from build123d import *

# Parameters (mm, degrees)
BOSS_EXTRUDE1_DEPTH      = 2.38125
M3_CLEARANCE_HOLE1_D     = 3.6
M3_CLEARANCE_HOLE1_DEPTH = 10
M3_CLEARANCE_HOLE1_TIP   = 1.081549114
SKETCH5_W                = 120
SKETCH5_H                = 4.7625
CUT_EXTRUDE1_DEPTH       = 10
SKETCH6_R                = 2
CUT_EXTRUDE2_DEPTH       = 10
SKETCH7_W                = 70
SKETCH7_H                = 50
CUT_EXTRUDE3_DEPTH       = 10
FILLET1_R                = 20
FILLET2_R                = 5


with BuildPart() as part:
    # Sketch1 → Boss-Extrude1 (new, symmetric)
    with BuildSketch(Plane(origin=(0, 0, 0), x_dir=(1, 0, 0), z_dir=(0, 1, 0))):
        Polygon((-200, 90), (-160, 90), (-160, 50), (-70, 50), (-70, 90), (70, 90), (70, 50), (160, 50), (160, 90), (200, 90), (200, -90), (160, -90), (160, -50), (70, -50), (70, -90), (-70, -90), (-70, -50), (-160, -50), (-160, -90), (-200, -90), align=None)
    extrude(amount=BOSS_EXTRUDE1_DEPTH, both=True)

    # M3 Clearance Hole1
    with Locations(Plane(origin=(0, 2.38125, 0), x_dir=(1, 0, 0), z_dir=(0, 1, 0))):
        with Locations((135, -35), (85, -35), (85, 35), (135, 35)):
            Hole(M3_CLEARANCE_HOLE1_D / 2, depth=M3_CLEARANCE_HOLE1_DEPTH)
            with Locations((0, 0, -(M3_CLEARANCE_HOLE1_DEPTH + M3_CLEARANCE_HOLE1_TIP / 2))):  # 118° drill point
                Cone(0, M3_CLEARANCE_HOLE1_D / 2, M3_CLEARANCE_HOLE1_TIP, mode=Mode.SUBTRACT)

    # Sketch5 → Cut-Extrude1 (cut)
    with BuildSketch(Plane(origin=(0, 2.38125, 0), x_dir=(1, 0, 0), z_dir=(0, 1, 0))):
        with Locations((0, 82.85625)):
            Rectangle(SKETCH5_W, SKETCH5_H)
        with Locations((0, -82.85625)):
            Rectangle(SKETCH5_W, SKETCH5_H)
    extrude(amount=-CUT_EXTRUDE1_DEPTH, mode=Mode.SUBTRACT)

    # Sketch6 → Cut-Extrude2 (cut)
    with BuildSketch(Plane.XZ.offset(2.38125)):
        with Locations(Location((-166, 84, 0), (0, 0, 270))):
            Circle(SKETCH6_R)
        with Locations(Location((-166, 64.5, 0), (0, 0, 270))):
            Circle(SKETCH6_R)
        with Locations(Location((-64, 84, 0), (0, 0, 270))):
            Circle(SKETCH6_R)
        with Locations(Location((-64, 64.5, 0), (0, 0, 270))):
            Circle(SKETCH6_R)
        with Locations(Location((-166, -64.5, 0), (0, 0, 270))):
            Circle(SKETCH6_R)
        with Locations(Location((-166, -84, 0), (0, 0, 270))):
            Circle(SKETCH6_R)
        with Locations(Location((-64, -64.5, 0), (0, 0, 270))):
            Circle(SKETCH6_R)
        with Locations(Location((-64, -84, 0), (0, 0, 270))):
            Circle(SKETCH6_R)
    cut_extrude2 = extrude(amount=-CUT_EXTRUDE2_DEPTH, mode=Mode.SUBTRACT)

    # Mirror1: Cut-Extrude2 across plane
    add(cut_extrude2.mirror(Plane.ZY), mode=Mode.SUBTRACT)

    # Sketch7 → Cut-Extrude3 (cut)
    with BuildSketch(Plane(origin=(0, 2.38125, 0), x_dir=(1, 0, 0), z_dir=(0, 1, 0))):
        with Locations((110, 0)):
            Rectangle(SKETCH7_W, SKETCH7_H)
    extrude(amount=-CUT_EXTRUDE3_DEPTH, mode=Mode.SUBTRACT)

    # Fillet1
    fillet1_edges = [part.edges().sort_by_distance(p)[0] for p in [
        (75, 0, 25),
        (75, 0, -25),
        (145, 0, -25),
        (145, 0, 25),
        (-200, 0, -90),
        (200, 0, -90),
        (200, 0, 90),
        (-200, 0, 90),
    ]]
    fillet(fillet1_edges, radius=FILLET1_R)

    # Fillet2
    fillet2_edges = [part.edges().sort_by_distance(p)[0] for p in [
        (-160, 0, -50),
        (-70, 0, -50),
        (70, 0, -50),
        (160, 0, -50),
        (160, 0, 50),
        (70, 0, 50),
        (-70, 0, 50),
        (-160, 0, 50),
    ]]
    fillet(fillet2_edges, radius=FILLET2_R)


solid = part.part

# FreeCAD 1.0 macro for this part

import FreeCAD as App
import Part
import Sketcher

V = App.Vector
Q = App.Units.Quantity


def edges_at(feature, points):
    """Names of the edges that pass closest to the given points."""
    edges = feature.Shape.Edges
    near = lambda p: min(range(len(edges)), key=lambda i: edges[i].distToShape(Part.Vertex(*p))[0])
    return sorted({f"Edge{near(p) + 1}" for p in points})

doc = App.newDocument("Part")
params = doc.addObject("Spreadsheet::Sheet", "Params")
for row, (alias, value) in enumerate([
    ("sketch1_width", "40 mm"),
    ("sketch1_width2", "90 mm"),
    ("sketch1_width3", "140 mm"),
    ("sketch1_height", "180 mm"),
    ("pad1_length", "4.7625 mm"),
    ("sketch2_diameter", "3.6 mm"),
    ("hole_diameter", "3.6 mm"),
    ("hole_depth", "10 mm"),
    ("sketch3_width", "120 mm"),
    ("pocket1_length", "10 mm"),
    ("sketch4_diameter", "4 mm"),
    ("pocket2_length", "10 mm"),
    ("sketch5_width", "70 mm"),
    ("sketch5_height", "50 mm"),
    ("pocket3_length", "10 mm"),
    ("fillet_radius", "20 mm"),
    ("fillet2_radius", "5 mm"),
], start=1):
    params.set(f"A{row}", alias)
    params.set(f"B{row}", "=" + value)
    params.setAlias(f"B{row}", alias)

body = doc.addObject("PartDesign::Body", "Body")

# Sketch on XZ plane
sketch1 = body.newObject("Sketcher::SketchObject", "Sketch")
sketch1.AttachmentSupport = (doc.getObject("XZ_Plane"), [""])
sketch1.MapMode = "FlatFace"
sketch1.addGeometry([
    Part.LineSegment(V(-160, -90, 0), V(-200, -90, 0)),  # 0
    Part.LineSegment(V(-200, -90, 0), V(-200, 90, 0)),  # 1
    Part.LineSegment(V(-200, 90, 0), V(-160, 90, 0)),  # 2
    Part.LineSegment(V(-160, 90, 0), V(-160, 50, 0)),  # 3
    Part.LineSegment(V(-160, 50, 0), V(-70, 50, 0)),  # 4
    Part.LineSegment(V(-70, 50, 0), V(-70, 90, 0)),  # 5
    Part.LineSegment(V(-70, 90, 0), V(70, 90, 0)),  # 6
    Part.LineSegment(V(70, 90, 0), V(70, 50, 0)),  # 7
    Part.LineSegment(V(70, 50, 0), V(160, 50, 0)),  # 8
    Part.LineSegment(V(160, 50, 0), V(160, 90, 0)),  # 9
    Part.LineSegment(V(160, 90, 0), V(200, 90, 0)),  # 10
    Part.LineSegment(V(200, 90, 0), V(200, -90, 0)),  # 11
    Part.LineSegment(V(200, -90, 0), V(160, -90, 0)),  # 12
    Part.LineSegment(V(160, -90, 0), V(160, -50, 0)),  # 13
    Part.LineSegment(V(160, -50, 0), V(70, -50, 0)),  # 14
    Part.LineSegment(V(70, -50, 0), V(70, -90, 0)),  # 15
    Part.LineSegment(V(70, -90, 0), V(-70, -90, 0)),  # 16
    Part.LineSegment(V(-70, -90, 0), V(-70, -50, 0)),  # 17
    Part.LineSegment(V(-70, -50, 0), V(-160, -50, 0)),  # 18
    Part.LineSegment(V(-160, -50, 0), V(-160, -90, 0)),  # 19
], False)
sketch1.addConstraint([
    Sketcher.Constraint("Coincident", 0, 2, 1, 1),
    Sketcher.Constraint("Coincident", 1, 2, 2, 1),
    Sketcher.Constraint("Coincident", 2, 2, 3, 1),
    Sketcher.Constraint("Coincident", 3, 2, 4, 1),
    Sketcher.Constraint("Coincident", 4, 2, 5, 1),
    Sketcher.Constraint("Coincident", 5, 2, 6, 1),
    Sketcher.Constraint("Coincident", 6, 2, 7, 1),
    Sketcher.Constraint("Coincident", 7, 2, 8, 1),
    Sketcher.Constraint("Coincident", 8, 2, 9, 1),
    Sketcher.Constraint("Coincident", 9, 2, 10, 1),
    Sketcher.Constraint("Coincident", 10, 2, 11, 1),
    Sketcher.Constraint("Coincident", 11, 2, 12, 1),
    Sketcher.Constraint("Coincident", 12, 2, 13, 1),
    Sketcher.Constraint("Coincident", 13, 2, 14, 1),
    Sketcher.Constraint("Coincident", 14, 2, 15, 1),
    Sketcher.Constraint("Coincident", 15, 2, 16, 1),
    Sketcher.Constraint("Coincident", 16, 2, 17, 1),
    Sketcher.Constraint("Coincident", 17, 2, 18, 1),
    Sketcher.Constraint("Coincident", 18, 2, 19, 1),
    Sketcher.Constraint("Coincident", 19, 2, 0, 1),
    Sketcher.Constraint("Horizontal", 0),
    Sketcher.Constraint("Vertical", 1),
    Sketcher.Constraint("Horizontal", 2),
    Sketcher.Constraint("Vertical", 3),
    Sketcher.Constraint("Horizontal", 4),
    Sketcher.Constraint("Vertical", 5),
    Sketcher.Constraint("Horizontal", 6),
    Sketcher.Constraint("Vertical", 7),
    Sketcher.Constraint("Horizontal", 8),
    Sketcher.Constraint("Vertical", 9),
    Sketcher.Constraint("Horizontal", 10),
    Sketcher.Constraint("Vertical", 11),
    Sketcher.Constraint("Horizontal", 12),
    Sketcher.Constraint("Vertical", 13),
    Sketcher.Constraint("Horizontal", 14),
    Sketcher.Constraint("Vertical", 15),
    Sketcher.Constraint("Horizontal", 16),
    Sketcher.Constraint("Vertical", 17),
    Sketcher.Constraint("Horizontal", 18),
    Sketcher.Constraint("Vertical", 19),
    Sketcher.Constraint("Symmetric", 0, 2, 10, 2, -1, 1),
    Sketcher.Constraint("Symmetric", 2, 2, 12, 2, -1, 1),
    Sketcher.Constraint("Symmetric", 4, 2, 14, 2, -1, 1),
    Sketcher.Constraint("Symmetric", 6, 2, 16, 2, -1, 1),
    Sketcher.Constraint("Symmetric", 8, 2, 18, 2, -1, 1),
    Sketcher.Constraint("Symmetric", 4, 2, 7, 2, -2),
    Sketcher.Constraint("Symmetric", 2, 2, 9, 2, -2),
    Sketcher.Constraint("Horizontal", 2, 2, 5, 2),
    Sketcher.Constraint("Equal", 12, 3),
    Sketcher.Constraint("DistanceX", 0, 2, 0, 1, Q("40 mm")),
    Sketcher.Constraint("DistanceX", 4, 1, 4, 2, Q("90 mm")),
    Sketcher.Constraint("DistanceX", 6, 1, 6, 2, Q("140 mm")),
    Sketcher.Constraint("DistanceY", 1, 1, 1, 2, Q("180 mm")),
])
sketch1.setExpression("Constraints[49]", "Params.sketch1_width")
sketch1.setExpression("Constraints[50]", "Params.sketch1_width2")
sketch1.setExpression("Constraints[51]", "Params.sketch1_width3")
sketch1.setExpression("Constraints[52]", "Params.sketch1_height")
pad1 = body.newObject("PartDesign::Pad", "Pad")
pad1.Profile = sketch1
pad1.setExpression("Length", "Params.pad1_length")
pad1.Midplane = True

# Sketch on XZ plane
sketch2 = body.newObject("Sketcher::SketchObject", "Sketch001")
sketch2.AttachmentSupport = (doc.getObject("XZ_Plane"), [""])
sketch2.MapMode = "FlatFace"
sketch2.AttachmentOffset = App.Placement(V(0, 0, -2.38125), App.Rotation())
sketch2.addGeometry([
    Part.Circle(V(135, 35, 0), V(0, 0, 1), 1.8),
    Part.Circle(V(85, 35, 0), V(0, 0, 1), 1.8),
    Part.Circle(V(85, -35, 0), V(0, 0, 1), 1.8),
    Part.Circle(V(135, -35, 0), V(0, 0, 1), 1.8),
], False)
sketch2.addConstraint([
    Sketcher.Constraint("Equal", 0, 1),
    Sketcher.Constraint("Equal", 1, 2),
    Sketcher.Constraint("Equal", 2, 3),
    Sketcher.Constraint("Symmetric", 1, 3, 2, 3, -1),
    Sketcher.Constraint("Symmetric", 0, 3, 3, 3, -1),
    Sketcher.Constraint("Horizontal", 0, 3, 1, 3),
    Sketcher.Constraint("Diameter", 0, Q("3.6 mm")),
    Sketcher.Constraint("DistanceX", -1, 1, 0, 3, Q("135 mm")),
    Sketcher.Constraint("DistanceY", -1, 1, 0, 3, Q("35 mm")),
    Sketcher.Constraint("DistanceX", -1, 1, 1, 3, Q("85 mm")),
])
sketch2.setExpression("Constraints[6]", "Params.sketch2_diameter")
doc.recompute()
hole = body.newObject("PartDesign::Hole", "Hole")
hole.Profile = sketch2
hole.ThreadType = "None"
hole.setExpression("Diameter", "Params.hole_diameter")
hole.DepthType = "Dimension"
hole.setExpression("Depth", "Params.hole_depth")
hole.DrillPoint = "Angled"
hole.DrillPointAngle = 118
hole.Reversed = True

# Sketch on XZ plane
sketch3 = body.newObject("Sketcher::SketchObject", "Sketch002")
sketch3.AttachmentSupport = (doc.getObject("XZ_Plane"), [""])
sketch3.MapMode = "FlatFace"
sketch3.AttachmentOffset = App.Placement(V(0, 0, -2.38125), App.Rotation())
sketch3.addGeometry([
    Part.LineSegment(V(-60, -85.2, 0), V(-60, -80.5, 0)),  # 0
    Part.LineSegment(V(-60, -80.5, 0), V(60, -80.5, 0)),  # 1
    Part.LineSegment(V(60, -80.5, 0), V(60, -85.2, 0)),  # 2
    Part.LineSegment(V(60, -85.2, 0), V(-60, -85.2, 0)),  # 3
    Part.LineSegment(V(-60, 80.5, 0), V(-60, 85.2, 0)),  # 4
    Part.LineSegment(V(-60, 85.2, 0), V(60, 85.2, 0)),  # 5
    Part.LineSegment(V(60, 85.2, 0), V(60, 80.5, 0)),  # 6
    Part.LineSegment(V(60, 80.5, 0), V(-60, 80.5, 0)),  # 7
], False)
sketch3.addConstraint([
    Sketcher.Constraint("Coincident", 0, 2, 1, 1),
    Sketcher.Constraint("Coincident", 1, 2, 2, 1),
    Sketcher.Constraint("Coincident", 2, 2, 3, 1),
    Sketcher.Constraint("Coincident", 3, 2, 0, 1),
    Sketcher.Constraint("Coincident", 4, 2, 5, 1),
    Sketcher.Constraint("Coincident", 5, 2, 6, 1),
    Sketcher.Constraint("Coincident", 6, 2, 7, 1),
    Sketcher.Constraint("Coincident", 7, 2, 4, 1),
    Sketcher.Constraint("Vertical", 0),
    Sketcher.Constraint("Horizontal", 1),
    Sketcher.Constraint("Vertical", 2),
    Sketcher.Constraint("Horizontal", 3),
    Sketcher.Constraint("Vertical", 4),
    Sketcher.Constraint("Horizontal", 5),
    Sketcher.Constraint("Vertical", 6),
    Sketcher.Constraint("Horizontal", 7),
    Sketcher.Constraint("Symmetric", 2, 2, 4, 2, -1, 1),
    Sketcher.Constraint("Symmetric", 0, 2, 6, 2, -1, 1),
    Sketcher.Constraint("Vertical", 3, 2, 4, 2),
    Sketcher.Constraint("DistanceX", 1, 1, 1, 2, Q("120 mm")),
    Sketcher.Constraint("DistanceY", 1, 2, 6, 2, Q("160.95 mm")),
    Sketcher.Constraint("DistanceY", 0, 1, 0, 2, Q("4.7625 mm")),
])
sketch3.setExpression("Constraints[19]", "Params.sketch3_width")
pocket1 = body.newObject("PartDesign::Pocket", "Pocket")
pocket1.Profile = sketch3
pocket1.setExpression("Length", "Params.pocket1_length")
pocket1.Reversed = True

# Sketch on XZ plane
sketch4 = body.newObject("Sketcher::SketchObject", "Sketch003")
sketch4.AttachmentSupport = (doc.getObject("XZ_Plane"), [""])
sketch4.MapMode = "FlatFace"
sketch4.AttachmentOffset = App.Placement(V(0, 0, 2.38125), App.Rotation())
sketch4.addGeometry([
    Part.Circle(V(-166, 84, 0), V(0, 0, 1), 2),  # 0
    Part.Circle(V(-166, 64.5, 0), V(0, 0, 1), 2),  # 1
    Part.Circle(V(-64, 84, 0), V(0, 0, 1), 2),  # 2
    Part.Circle(V(-64, 64.5, 0), V(0, 0, 1), 2),  # 3
    Part.Circle(V(-166, -64.5, 0), V(0, 0, 1), 2),  # 4
    Part.Circle(V(-166, -84, 0), V(0, 0, 1), 2),  # 5
    Part.Circle(V(-64, -64.5, 0), V(0, 0, 1), 2),  # 6
    Part.Circle(V(-64, -84, 0), V(0, 0, 1), 2),  # 7
], False)
sketch4.addConstraint([
    Sketcher.Constraint("Equal", 0, 1),
    Sketcher.Constraint("Equal", 1, 2),
    Sketcher.Constraint("Equal", 2, 3),
    Sketcher.Constraint("Equal", 3, 4),
    Sketcher.Constraint("Equal", 4, 5),
    Sketcher.Constraint("Equal", 5, 6),
    Sketcher.Constraint("Equal", 6, 7),
    Sketcher.Constraint("Symmetric", 1, 3, 4, 3, -1),
    Sketcher.Constraint("Symmetric", 0, 3, 5, 3, -1),
    Sketcher.Constraint("Symmetric", 3, 3, 6, 3, -1),
    Sketcher.Constraint("Symmetric", 2, 3, 7, 3, -1),
    Sketcher.Constraint("Horizontal", 0, 3, 2, 3),
    Sketcher.Constraint("Horizontal", 1, 3, 3, 3),
    Sketcher.Constraint("Vertical", 0, 3, 1, 3),
    Sketcher.Constraint("Vertical", 2, 3, 3, 3),
    Sketcher.Constraint("Diameter", 0, Q("4 mm")),
    Sketcher.Constraint("DistanceX", 0, 3, -1, 1, Q("166 mm")),
    Sketcher.Constraint("DistanceY", -1, 1, 0, 3, Q("84 mm")),
    Sketcher.Constraint("DistanceX", 2, 3, -1, 1, Q("64 mm")),
    Sketcher.Constraint("DistanceY", 4, 3, 1, 3, Q("129 mm")),
])
sketch4.setExpression("Constraints[15]", "Params.sketch4_diameter")
pocket2 = body.newObject("PartDesign::Pocket", "Pocket001")
pocket2.Profile = sketch4
pocket2.setExpression("Length", "Params.pocket2_length")
doc.recompute()

mirrored = body.newObject("PartDesign::Mirrored", "Mirrored")
mirrored.Originals = [pocket2]
mirrored.MirrorPlane = (doc.getObject("YZ_Plane"), [""])
body.Tip = mirrored

# Sketch on XZ plane
sketch5 = body.newObject("Sketcher::SketchObject", "Sketch004")
sketch5.AttachmentSupport = (doc.getObject("XZ_Plane"), [""])
sketch5.MapMode = "FlatFace"
sketch5.AttachmentOffset = App.Placement(V(0, 0, -2.38125), App.Rotation())
sketch5.addGeometry([
    Part.LineSegment(V(75, -25, 0), V(75, 25, 0)),
    Part.LineSegment(V(75, 25, 0), V(145, 25, 0)),
    Part.LineSegment(V(145, 25, 0), V(145, -25, 0)),
    Part.LineSegment(V(145, -25, 0), V(75, -25, 0)),
], False)
sketch5.addConstraint([
    Sketcher.Constraint("Coincident", 0, 2, 1, 1),
    Sketcher.Constraint("Coincident", 1, 2, 2, 1),
    Sketcher.Constraint("Coincident", 2, 2, 3, 1),
    Sketcher.Constraint("Coincident", 3, 2, 0, 1),
    Sketcher.Constraint("Vertical", 0),
    Sketcher.Constraint("Horizontal", 1),
    Sketcher.Constraint("Vertical", 2),
    Sketcher.Constraint("Horizontal", 3),
    Sketcher.Constraint("DistanceX", 1, 1, 1, 2, Q("70 mm")),
    Sketcher.Constraint("DistanceY", 0, 1, 0, 2, Q("50 mm")),
    Sketcher.Constraint("DistanceX", -1, 1, 0, 2, Q("75 mm")),
    Sketcher.Constraint("DistanceY", -1, 1, 0, 2, Q("25 mm")),
])
sketch5.setExpression("Constraints[8]", "Params.sketch5_width")
sketch5.setExpression("Constraints[9]", "Params.sketch5_height")
pocket3 = body.newObject("PartDesign::Pocket", "Pocket002")
pocket3.Profile = sketch5
pocket3.setExpression("Length", "Params.pocket3_length")
pocket3.Reversed = True
doc.recompute()

fillet = body.newObject("PartDesign::Fillet", "Fillet")
fillet.Base = (pocket3, edges_at(pocket3, [
    (75, 0, 25),
    (75, 0, -25),
    (145, 0, -25),
    (145, 0, 25),
    (-200, 0, -90),
    (200, 0, -90),
    (200, 0, 90),
    (-200, 0, 90),
]))
fillet.setExpression("Radius", "Params.fillet_radius")
doc.recompute()

fillet2 = body.newObject("PartDesign::Fillet", "Fillet001")
fillet2.Base = (fillet, edges_at(fillet, [
    (-160, 0, -50),
    (-70, 0, -50),
    (70, 0, -50),
    (160, 0, -50),
    (160, 0, 50),
    (70, 0, 50),
    (-70, 0, 50),
    (-160, 0, 50),
]))
fillet2.setExpression("Radius", "Params.fillet2_radius")

doc.recompute()
